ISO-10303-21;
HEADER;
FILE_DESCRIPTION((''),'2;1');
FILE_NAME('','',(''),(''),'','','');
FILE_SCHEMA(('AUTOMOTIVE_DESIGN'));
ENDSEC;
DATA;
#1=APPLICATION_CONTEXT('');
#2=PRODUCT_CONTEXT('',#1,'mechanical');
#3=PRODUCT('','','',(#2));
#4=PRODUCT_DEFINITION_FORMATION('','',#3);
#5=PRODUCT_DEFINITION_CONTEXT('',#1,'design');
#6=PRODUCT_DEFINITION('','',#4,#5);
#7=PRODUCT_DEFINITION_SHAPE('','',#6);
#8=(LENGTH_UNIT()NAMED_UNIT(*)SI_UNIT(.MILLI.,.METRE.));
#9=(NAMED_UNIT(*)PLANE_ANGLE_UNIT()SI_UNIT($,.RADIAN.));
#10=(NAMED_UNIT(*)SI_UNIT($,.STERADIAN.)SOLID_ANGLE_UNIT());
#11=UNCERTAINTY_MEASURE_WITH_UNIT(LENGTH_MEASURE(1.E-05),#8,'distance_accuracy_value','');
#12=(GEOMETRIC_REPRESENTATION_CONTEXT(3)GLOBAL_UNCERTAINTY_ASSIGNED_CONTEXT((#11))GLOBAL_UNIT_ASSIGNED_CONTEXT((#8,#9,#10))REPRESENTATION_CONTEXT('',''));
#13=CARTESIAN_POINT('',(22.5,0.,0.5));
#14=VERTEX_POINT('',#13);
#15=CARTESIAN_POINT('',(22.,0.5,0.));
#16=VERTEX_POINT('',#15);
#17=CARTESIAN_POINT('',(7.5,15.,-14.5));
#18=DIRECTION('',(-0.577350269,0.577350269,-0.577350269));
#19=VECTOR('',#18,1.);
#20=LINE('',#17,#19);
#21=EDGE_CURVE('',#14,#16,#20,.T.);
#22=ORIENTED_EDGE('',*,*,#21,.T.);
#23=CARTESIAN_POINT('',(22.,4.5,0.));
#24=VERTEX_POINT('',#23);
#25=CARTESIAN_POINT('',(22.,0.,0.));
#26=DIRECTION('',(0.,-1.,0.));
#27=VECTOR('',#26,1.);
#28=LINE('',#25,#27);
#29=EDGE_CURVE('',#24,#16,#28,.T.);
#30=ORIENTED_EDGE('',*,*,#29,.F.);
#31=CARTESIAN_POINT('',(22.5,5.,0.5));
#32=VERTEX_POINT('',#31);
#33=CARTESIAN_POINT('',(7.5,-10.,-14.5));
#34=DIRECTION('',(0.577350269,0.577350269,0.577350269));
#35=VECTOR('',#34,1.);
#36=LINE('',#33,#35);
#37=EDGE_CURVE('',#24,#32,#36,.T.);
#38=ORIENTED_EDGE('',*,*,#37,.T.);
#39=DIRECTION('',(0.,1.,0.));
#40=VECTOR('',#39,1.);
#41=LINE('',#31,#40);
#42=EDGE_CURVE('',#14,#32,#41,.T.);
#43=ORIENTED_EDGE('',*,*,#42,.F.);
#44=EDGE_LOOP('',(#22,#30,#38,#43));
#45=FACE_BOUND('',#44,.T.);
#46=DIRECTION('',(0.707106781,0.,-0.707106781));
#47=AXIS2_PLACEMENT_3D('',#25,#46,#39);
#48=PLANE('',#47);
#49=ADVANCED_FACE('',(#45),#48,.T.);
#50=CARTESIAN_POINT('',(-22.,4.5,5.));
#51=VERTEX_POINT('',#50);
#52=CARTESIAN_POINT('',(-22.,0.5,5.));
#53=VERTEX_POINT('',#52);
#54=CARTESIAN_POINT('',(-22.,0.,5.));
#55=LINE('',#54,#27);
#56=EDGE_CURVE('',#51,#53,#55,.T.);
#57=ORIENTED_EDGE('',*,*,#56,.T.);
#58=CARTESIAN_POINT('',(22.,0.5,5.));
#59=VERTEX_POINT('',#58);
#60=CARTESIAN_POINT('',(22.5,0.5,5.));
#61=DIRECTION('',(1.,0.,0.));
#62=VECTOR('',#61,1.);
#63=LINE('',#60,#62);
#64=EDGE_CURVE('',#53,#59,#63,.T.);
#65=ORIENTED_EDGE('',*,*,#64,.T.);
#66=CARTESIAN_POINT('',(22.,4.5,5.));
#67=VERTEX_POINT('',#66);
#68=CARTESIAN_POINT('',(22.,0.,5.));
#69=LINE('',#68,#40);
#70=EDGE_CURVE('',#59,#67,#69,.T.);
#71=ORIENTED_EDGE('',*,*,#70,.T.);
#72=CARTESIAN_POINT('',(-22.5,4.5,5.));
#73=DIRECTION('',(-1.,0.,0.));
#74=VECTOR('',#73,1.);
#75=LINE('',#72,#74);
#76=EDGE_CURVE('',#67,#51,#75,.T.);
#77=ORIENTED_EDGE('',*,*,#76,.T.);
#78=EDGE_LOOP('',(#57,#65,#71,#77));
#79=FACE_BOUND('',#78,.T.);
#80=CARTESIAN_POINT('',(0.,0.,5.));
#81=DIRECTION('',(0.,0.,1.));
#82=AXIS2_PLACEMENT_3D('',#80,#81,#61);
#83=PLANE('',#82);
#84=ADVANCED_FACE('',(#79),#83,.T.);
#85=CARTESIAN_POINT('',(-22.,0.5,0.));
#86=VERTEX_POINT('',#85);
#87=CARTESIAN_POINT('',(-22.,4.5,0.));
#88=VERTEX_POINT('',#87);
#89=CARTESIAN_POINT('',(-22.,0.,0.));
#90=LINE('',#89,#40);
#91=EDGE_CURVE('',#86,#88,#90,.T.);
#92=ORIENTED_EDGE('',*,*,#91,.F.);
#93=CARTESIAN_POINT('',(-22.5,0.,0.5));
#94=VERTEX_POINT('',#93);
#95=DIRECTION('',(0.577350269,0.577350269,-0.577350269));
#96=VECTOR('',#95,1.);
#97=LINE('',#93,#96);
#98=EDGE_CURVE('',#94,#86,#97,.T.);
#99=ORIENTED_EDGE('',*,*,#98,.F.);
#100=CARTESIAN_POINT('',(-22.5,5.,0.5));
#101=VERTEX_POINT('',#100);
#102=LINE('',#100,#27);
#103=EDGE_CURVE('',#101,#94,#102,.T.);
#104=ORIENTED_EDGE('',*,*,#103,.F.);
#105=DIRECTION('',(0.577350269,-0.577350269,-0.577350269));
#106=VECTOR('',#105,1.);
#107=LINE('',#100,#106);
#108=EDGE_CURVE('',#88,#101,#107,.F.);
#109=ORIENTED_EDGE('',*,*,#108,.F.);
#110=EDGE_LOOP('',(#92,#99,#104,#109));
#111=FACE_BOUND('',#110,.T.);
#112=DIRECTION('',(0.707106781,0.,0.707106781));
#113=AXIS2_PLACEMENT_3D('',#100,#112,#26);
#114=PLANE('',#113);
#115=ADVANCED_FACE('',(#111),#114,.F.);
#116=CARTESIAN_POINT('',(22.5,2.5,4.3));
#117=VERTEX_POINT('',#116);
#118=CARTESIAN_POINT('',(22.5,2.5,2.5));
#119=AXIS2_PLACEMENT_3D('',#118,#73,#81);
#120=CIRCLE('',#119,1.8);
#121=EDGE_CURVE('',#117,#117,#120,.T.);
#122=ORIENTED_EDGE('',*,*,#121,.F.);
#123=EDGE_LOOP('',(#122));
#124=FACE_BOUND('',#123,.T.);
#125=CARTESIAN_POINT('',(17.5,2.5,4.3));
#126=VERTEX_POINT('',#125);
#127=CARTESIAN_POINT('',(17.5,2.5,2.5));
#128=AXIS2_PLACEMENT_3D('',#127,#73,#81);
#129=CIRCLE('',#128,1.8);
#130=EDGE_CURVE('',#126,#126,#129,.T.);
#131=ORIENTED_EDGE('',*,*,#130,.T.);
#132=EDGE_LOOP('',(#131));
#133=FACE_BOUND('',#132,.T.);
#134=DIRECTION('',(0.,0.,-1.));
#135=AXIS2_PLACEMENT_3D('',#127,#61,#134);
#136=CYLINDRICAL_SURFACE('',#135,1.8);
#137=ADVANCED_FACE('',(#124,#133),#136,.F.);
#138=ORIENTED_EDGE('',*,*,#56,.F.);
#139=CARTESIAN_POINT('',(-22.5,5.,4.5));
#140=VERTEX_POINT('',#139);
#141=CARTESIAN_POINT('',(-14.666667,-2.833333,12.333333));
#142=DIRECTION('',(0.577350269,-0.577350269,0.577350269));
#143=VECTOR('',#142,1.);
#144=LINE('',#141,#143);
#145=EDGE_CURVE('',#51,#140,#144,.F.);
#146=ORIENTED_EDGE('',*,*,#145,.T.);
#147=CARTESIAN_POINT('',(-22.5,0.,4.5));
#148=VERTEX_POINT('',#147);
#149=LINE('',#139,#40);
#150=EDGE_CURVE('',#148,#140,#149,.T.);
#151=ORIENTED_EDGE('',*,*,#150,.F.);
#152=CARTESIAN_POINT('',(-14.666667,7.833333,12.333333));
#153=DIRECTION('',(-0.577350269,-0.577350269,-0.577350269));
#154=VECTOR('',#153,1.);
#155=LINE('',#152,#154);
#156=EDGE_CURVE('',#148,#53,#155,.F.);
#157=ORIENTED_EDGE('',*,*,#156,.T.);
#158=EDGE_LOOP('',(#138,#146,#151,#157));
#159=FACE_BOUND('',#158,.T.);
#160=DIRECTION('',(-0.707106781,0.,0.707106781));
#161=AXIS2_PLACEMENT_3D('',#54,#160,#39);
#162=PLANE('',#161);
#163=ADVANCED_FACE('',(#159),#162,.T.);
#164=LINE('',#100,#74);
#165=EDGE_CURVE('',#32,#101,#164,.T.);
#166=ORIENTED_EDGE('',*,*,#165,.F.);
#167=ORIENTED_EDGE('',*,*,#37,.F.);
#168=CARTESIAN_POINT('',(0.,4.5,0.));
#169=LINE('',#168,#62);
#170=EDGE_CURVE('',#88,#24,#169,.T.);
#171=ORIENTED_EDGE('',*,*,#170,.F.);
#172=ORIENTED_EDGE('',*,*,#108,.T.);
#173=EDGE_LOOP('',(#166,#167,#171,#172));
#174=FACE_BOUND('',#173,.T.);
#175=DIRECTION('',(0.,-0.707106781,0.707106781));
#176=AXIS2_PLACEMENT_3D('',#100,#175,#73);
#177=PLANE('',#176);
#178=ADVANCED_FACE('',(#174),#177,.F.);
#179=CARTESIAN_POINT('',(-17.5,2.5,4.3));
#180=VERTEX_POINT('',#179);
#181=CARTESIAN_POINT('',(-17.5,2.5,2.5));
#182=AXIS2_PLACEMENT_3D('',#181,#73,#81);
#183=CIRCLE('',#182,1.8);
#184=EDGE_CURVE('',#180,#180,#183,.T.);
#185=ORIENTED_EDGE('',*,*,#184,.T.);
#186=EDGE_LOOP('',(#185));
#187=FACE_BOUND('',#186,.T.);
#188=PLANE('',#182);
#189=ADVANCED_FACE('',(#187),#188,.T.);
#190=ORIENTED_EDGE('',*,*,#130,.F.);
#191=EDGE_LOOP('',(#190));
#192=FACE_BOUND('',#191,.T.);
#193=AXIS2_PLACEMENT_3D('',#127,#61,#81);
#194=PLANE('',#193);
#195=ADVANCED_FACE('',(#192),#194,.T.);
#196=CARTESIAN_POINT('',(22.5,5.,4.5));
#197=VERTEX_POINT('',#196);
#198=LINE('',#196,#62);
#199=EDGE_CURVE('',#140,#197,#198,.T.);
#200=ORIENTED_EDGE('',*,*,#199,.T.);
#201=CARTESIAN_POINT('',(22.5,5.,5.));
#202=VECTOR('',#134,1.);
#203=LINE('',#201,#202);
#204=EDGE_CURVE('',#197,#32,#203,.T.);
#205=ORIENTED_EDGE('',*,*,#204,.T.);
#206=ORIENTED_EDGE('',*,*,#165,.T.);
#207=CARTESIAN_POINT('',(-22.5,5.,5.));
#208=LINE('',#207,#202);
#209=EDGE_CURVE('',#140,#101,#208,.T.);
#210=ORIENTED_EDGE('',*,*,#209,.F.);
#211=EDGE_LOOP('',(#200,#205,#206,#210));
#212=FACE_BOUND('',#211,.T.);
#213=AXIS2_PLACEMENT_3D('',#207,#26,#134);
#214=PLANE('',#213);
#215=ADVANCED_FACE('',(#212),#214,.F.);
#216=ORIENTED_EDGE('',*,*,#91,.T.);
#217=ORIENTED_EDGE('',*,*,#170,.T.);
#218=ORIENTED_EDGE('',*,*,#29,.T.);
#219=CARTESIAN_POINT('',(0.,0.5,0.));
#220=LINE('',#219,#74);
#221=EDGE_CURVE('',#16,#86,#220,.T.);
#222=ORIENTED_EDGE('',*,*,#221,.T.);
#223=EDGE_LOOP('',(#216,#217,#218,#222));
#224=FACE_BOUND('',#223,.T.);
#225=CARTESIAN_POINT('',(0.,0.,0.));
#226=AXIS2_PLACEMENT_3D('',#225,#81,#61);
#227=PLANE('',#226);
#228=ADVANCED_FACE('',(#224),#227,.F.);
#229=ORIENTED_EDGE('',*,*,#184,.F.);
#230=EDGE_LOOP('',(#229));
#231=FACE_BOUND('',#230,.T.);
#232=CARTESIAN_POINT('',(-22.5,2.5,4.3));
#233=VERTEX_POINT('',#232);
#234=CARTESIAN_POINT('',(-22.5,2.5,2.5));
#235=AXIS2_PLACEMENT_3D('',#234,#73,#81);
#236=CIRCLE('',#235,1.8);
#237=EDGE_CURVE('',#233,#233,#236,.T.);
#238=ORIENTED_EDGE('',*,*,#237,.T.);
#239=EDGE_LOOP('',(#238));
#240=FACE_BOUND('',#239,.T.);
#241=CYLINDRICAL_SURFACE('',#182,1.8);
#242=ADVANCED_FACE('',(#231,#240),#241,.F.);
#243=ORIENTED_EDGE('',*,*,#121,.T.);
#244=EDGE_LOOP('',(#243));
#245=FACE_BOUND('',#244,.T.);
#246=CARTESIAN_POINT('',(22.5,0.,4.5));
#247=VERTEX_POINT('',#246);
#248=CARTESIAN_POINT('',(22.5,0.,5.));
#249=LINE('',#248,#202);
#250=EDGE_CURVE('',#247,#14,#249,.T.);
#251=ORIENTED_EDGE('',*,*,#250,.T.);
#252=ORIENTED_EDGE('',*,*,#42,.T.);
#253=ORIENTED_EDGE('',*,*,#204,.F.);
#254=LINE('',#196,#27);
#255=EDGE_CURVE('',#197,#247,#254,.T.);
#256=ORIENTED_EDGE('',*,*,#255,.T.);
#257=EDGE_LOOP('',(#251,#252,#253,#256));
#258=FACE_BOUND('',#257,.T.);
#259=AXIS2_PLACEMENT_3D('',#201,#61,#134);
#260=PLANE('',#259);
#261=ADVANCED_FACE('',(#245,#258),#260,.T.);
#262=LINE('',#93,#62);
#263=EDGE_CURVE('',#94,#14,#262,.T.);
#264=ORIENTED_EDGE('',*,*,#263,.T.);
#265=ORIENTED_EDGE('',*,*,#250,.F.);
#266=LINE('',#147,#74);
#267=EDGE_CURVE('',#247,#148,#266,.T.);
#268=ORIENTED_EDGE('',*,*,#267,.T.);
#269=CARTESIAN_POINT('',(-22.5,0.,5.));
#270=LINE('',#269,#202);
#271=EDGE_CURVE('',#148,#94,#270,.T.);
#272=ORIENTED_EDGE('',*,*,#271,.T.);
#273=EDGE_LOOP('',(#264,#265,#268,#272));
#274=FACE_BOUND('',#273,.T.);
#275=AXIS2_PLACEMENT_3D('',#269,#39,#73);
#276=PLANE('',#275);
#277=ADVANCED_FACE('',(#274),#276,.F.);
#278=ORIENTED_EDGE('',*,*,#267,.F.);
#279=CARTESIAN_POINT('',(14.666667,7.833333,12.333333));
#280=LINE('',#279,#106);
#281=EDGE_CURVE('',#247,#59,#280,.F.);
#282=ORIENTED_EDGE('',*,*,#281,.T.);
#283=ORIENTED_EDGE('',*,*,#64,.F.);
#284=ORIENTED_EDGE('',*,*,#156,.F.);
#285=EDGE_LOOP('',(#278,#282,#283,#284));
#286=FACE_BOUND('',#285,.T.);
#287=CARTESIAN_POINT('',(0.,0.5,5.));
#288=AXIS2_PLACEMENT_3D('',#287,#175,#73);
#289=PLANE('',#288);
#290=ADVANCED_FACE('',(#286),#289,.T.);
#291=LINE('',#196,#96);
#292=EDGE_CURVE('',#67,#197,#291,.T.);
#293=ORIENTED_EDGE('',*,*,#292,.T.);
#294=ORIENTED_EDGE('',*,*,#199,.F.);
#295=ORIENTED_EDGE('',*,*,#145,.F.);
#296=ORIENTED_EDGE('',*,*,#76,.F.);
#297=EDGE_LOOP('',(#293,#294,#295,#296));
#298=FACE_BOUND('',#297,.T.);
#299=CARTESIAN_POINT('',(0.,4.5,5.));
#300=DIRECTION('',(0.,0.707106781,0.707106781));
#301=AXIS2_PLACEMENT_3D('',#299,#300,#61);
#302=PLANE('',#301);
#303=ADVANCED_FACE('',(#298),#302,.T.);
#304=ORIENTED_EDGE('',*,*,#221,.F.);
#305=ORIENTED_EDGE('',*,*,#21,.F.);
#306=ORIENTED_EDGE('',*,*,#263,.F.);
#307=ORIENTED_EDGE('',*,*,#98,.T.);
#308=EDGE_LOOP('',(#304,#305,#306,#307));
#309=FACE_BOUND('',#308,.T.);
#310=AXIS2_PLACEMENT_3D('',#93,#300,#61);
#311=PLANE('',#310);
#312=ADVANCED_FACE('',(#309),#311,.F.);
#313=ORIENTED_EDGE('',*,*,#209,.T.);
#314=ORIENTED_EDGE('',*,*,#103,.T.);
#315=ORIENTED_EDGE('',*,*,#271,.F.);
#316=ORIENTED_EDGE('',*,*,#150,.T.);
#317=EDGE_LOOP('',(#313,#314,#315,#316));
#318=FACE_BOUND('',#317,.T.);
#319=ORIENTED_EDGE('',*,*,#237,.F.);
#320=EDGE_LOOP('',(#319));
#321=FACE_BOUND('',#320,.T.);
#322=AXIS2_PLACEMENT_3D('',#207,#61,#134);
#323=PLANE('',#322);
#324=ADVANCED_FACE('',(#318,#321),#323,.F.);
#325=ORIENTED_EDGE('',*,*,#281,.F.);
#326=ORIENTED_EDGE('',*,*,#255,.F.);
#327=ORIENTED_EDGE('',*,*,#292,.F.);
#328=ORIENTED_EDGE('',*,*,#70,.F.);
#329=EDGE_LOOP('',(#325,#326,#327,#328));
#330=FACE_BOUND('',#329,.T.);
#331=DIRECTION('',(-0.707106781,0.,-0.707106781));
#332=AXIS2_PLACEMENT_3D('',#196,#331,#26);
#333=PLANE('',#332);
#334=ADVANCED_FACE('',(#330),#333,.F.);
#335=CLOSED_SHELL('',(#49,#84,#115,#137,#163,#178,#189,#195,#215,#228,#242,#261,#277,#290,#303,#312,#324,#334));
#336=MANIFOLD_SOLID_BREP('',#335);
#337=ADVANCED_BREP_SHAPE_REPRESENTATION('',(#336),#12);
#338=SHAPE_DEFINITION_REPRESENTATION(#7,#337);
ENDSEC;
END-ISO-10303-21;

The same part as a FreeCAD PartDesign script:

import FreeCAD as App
import Part
import Sketcher

V = App.Vector


def edges_at(feature, points):
    """Names of the edges that pass closest to the given points."""
    edges = feature.Shape.Edges
    near = lambda p: min(range(len(edges)), key=lambda i: edges[i].distToShape(Part.Vertex(*p))[0])
    return sorted({f"Edge{near(p) + 1}" for p in points})


def add_polygon(sketch, points):
    """Adds a closed chain of lines whose ends are joined by coincident constraints."""
    first, n = sketch.GeometryCount, len(points)
    for a, b in zip(points, points[1:] + points[:1]):
        sketch.addGeometry(Part.LineSegment(App.Vector(*a, 0), App.Vector(*b, 0)), False)
    for i in range(n):
        sketch.addConstraint(Sketcher.Constraint("Coincident", first + i, 2, first + (i + 1) % n, 1))

doc = App.newDocument("Part")
params = doc.addObject("Spreadsheet::Sheet", "Params")
for row, (alias, value) in enumerate([
    ("sketch1_height", "5 mm"),
    ("sketch1_width", "22.5 mm"),
    ("pad1_length", "5 mm"),
    ("sketch2_diameter", "3.6 mm"),
    ("pocket1_length", "5 mm"),
    ("chamfer_size", "0.5 mm"),
], start=1):
    params.set(f"A{row}", alias)
    params.set(f"B{row}", "=" + value)
    params.setAlias(f"B{row}", alias)

body = doc.addObject("PartDesign::Body", "Body")

# Sketch on XY plane
sketch1 = body.newObject("Sketcher::SketchObject", "Sketch")
sketch1.AttachmentSupport = (doc.getObject("XY_Plane"), [""])
sketch1.MapMode = "FlatFace"
add_polygon(sketch1, [(-22.5, 5), (-22.5, 0), (0, 0), (0, 5)])  # lines 0-3
sketch1.addConstraint(Sketcher.Constraint("Vertical", 0))
sketch1.addConstraint(Sketcher.Constraint("Horizontal", 1))
sketch1.addConstraint(Sketcher.Constraint("Vertical", 2))
sketch1.addConstraint(Sketcher.Constraint("Horizontal", 3))
sketch1.addConstraint(Sketcher.Constraint("Coincident", 1, 2, -1, 1))
sketch1.addConstraint(Sketcher.Constraint("DistanceY", 0, 2, 0, 1, 5.0))
sketch1.addConstraint(Sketcher.Constraint("DistanceX", 1, 1, 1, 2, 22.5))
sketch1.setExpression("Constraints[9]", "Params.sketch1_height")
sketch1.setExpression("Constraints[10]", "Params.sketch1_width")
pad1 = body.newObject("PartDesign::Pad", "Pad")
pad1.Profile = sketch1
pad1.setExpression("Length", "Params.pad1_length")

# Sketch on YZ plane
sketch2 = body.newObject("Sketcher::SketchObject", "Sketch001")
sketch2.AttachmentSupport = (doc.getObject("YZ_Plane"), [""])
sketch2.MapMode = "FlatFace"
sketch2.AttachmentOffset = App.Placement(V(0, 0, -22.5), App.Rotation())
sketch2.addGeometry(Part.Circle(V(2.5, 2.5, 0), V(0, 0, 1), 1.8), False)
sketch2.addConstraint(Sketcher.Constraint("Diameter", 0, 3.6))
sketch2.addConstraint(Sketcher.Constraint("DistanceX", -1, 1, 0, 3, 2.5))
sketch2.addConstraint(Sketcher.Constraint("DistanceY", -1, 1, 0, 3, 2.5))
sketch2.setExpression("Constraints[0]", "Params.sketch2_diameter")
pocket1 = body.newObject("PartDesign::Pocket", "Pocket")
pocket1.Profile = sketch2
pocket1.setExpression("Length", "Params.pocket1_length")
pocket1.Reversed = True
doc.recompute()

mirrored = body.newObject("PartDesign::Mirrored", "Mirrored")
mirrored.Originals = [pad1, pocket1]
mirrored.MirrorPlane = (doc.getObject("YZ_Plane"), [""])
body.Tip = mirrored
doc.recompute()

chamfer = body.newObject("PartDesign::Chamfer", "Chamfer")
chamfer.Base = (mirrored, edges_at(mirrored, [
    (0, 5, 5),
    (-22.5, 2.5, 5),
    (22.5, 2.5, 5),
    (22.5, 2.5, 0),
    (0, 0, 5),
    (-22.5, 2.5, 0),
    (0, 5, 0),
    (0, 0, 0),
]))
chamfer.setExpression("Size", "Params.chamfer_size")

doc.recompute()
